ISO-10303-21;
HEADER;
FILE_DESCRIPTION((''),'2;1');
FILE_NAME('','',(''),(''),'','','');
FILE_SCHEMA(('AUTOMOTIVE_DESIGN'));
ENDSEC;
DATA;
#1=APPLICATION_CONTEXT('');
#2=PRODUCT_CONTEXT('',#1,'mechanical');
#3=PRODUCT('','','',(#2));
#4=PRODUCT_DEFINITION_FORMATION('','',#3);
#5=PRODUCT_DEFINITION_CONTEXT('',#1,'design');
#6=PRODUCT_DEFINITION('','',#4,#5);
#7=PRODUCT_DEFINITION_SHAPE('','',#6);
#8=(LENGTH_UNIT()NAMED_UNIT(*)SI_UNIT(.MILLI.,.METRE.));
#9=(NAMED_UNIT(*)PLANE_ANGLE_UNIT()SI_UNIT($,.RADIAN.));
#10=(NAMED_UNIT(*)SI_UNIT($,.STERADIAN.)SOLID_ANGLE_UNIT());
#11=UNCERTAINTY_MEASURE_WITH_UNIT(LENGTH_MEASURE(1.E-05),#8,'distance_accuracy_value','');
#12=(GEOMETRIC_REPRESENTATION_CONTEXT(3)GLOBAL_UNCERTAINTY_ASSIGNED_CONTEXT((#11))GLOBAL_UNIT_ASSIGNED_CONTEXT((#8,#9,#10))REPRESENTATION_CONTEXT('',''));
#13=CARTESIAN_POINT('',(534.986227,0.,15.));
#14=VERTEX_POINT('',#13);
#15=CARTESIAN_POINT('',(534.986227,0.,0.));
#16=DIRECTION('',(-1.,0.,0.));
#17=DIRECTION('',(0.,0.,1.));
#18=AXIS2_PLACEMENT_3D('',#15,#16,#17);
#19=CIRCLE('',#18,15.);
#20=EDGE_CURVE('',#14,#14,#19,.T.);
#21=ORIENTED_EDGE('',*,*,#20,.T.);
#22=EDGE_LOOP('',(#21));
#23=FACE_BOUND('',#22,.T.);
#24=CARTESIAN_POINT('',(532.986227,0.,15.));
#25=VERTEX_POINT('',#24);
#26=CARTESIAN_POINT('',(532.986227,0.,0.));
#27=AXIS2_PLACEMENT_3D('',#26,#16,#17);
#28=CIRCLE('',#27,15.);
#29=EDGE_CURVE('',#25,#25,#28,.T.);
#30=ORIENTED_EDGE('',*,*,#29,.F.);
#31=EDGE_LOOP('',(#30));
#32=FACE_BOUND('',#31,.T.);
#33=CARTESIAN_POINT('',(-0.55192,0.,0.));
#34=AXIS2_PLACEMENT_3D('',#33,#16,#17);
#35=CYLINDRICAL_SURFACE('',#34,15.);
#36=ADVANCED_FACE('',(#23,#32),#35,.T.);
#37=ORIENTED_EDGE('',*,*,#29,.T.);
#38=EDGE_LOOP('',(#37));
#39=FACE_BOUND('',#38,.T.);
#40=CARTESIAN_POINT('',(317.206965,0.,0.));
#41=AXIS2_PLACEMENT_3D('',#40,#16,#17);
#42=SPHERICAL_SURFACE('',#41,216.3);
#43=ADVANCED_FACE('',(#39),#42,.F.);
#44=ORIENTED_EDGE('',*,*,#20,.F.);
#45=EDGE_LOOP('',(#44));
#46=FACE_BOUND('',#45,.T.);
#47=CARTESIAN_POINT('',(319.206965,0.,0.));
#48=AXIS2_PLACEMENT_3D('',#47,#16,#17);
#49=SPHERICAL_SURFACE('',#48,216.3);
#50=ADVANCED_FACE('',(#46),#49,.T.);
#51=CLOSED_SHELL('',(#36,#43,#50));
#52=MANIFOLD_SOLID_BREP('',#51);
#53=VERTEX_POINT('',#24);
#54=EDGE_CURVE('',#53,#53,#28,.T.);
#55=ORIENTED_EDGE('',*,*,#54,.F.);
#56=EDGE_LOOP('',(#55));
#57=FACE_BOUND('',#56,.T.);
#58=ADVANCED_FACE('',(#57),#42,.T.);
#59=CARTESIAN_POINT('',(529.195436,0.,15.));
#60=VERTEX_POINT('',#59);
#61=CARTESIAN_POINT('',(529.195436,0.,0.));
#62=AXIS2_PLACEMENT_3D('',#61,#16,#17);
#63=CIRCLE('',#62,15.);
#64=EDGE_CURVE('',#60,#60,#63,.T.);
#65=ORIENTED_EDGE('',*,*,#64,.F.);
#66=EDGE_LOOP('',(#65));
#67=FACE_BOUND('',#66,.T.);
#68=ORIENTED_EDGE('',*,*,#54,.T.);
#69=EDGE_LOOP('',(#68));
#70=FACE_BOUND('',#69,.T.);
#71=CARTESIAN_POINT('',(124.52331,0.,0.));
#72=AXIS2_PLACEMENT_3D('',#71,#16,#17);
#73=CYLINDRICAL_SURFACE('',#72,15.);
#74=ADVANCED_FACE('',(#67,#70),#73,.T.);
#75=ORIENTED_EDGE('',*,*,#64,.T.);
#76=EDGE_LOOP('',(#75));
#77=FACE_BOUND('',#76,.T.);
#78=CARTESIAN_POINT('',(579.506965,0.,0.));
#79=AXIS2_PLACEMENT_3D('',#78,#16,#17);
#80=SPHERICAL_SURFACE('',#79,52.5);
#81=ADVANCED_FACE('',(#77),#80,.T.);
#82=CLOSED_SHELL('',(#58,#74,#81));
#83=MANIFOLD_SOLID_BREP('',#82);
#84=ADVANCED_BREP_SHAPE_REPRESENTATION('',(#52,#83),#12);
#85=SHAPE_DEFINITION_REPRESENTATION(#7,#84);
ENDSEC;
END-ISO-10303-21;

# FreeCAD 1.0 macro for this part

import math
import FreeCAD as App
import Part
import Sketcher

V = App.Vector

doc = App.newDocument("Part")
params = doc.addObject("Spreadsheet::Sheet", "Params")
for row, (alias, value) in enumerate([
    ("sketch1_radius", "52.5 mm"),
    ("sketch1_radius2", "216.3 mm"),
    ("sketch1_width", "6.5 mm"),
    ("revolution_angle", "360 deg"),
    ("sketch2_radius", "216.3 mm"),
    ("sketch2_width", "2 mm"),
    ("revolution2_angle", "360 deg"),
], start=1):
    params.set(f"A{row}", alias)
    params.set(f"B{row}", "=" + value)
    params.setAlias(f"B{row}", alias)

body = doc.addObject("PartDesign::Body", "Body")

# Sketch on XZ plane
sketch1 = body.newObject("Sketcher::SketchObject", "Sketch")
sketch1.AttachmentSupport = (doc.getObject("XZ_Plane"), [""])
sketch1.MapMode = "FlatFace"
sketch1.addGeometry(Part.ArcOfCircle(Part.Circle(V(579.5, 0, 0), V(0, 0, 1), 52.5), math.radians(-180), math.radians(-163.4)), False)
sketch1.addGeometry(Part.LineSegment(V(527, 0, 0), V(533.5, 0, 0)), False)
sketch1.addGeometry(Part.ArcOfCircle(Part.Circle(V(317.2, 0, 0), V(0, 0, 1), 216.3), math.radians(-3.98), math.radians(0)), False)
sketch1.addGeometry(Part.LineSegment(V(533, -15, 0), V(529.2, -15, 0)), False)
sketch1.addConstraint(Sketcher.Constraint("Coincident", 0, 1, 1, 1))
sketch1.addConstraint(Sketcher.Constraint("Coincident", 1, 2, 2, 2))
sketch1.addConstraint(Sketcher.Constraint("Coincident", 2, 1, 3, 1))
sketch1.addConstraint(Sketcher.Constraint("Coincident", 3, 2, 0, 2))
sketch1.addConstraint(Sketcher.Constraint("Horizontal", 1))
sketch1.addConstraint(Sketcher.Constraint("Horizontal", 3))
sketch1.addConstraint(Sketcher.Constraint("PointOnObject", 0, 3, -1))
sketch1.addConstraint(Sketcher.Constraint("PointOnObject", 2, 3, -1))
sketch1.addConstraint(Sketcher.Constraint("PointOnObject", 0, 1, -1))
sketch1.addConstraint(Sketcher.Constraint("Radius", 0, 52.5))
sketch1.addConstraint(Sketcher.Constraint("Radius", 2, 216.3))
sketch1.addConstraint(Sketcher.Constraint("DistanceX", 1, 1, 1, 2, 6.5))
sketch1.addConstraint(Sketcher.Constraint("DistanceY", 2, 1, -1, 1, 15.0))
sketch1.addConstraint(Sketcher.Constraint("DistanceX", -1, 1, 0, 3, 579.506965))
sketch1.setExpression("Constraints[9]", "Params.sketch1_radius")
sketch1.setExpression("Constraints[10]", "Params.sketch1_radius2")
sketch1.setExpression("Constraints[11]", "Params.sketch1_width")
revolution = body.newObject("PartDesign::Revolution", "Revolution")
revolution.Profile = sketch1
revolution.ReferenceAxis = (sketch1, ["H_Axis"])
revolution.setExpression("Angle", "Params.revolution_angle")
body2 = doc.addObject("PartDesign::Body", "Body001")

# Sketch on XZ plane
sketch2 = body2.newObject("Sketcher::SketchObject", "Sketch001")
sketch2.AttachmentSupport = (doc.getObject("XZ_Plane001"), [""])
sketch2.MapMode = "FlatFace"
sketch2.addGeometry(Part.LineSegment(V(535, -15, 0), V(533, -15, 0)), False)
sketch2.addGeometry(Part.ArcOfCircle(Part.Circle(V(317.2, 0, 0), V(0, 0, 1), 216.3), math.radians(-3.98), math.radians(0)), False)
sketch2.addGeometry(Part.LineSegment(V(533.5, 0, 0), V(535.5, 0, 0)), False)
sketch2.addGeometry(Part.ArcOfCircle(Part.Circle(V(319.2, 0, 0), V(0, 0, 1), 216.3), math.radians(-3.98), math.radians(0)), False)
sketch2.addConstraint(Sketcher.Constraint("Coincident", 0, 2, 1, 1))
sketch2.addConstraint(Sketcher.Constraint("Coincident", 1, 2, 2, 1))
sketch2.addConstraint(Sketcher.Constraint("Coincident", 2, 2, 3, 2))
sketch2.addConstraint(Sketcher.Constraint("Coincident", 3, 1, 0, 1))
sketch2.addConstraint(Sketcher.Constraint("Horizontal", 0))
sketch2.addConstraint(Sketcher.Constraint("Horizontal", 2))
sketch2.addConstraint(Sketcher.Constraint("Equal", 1, 3))
sketch2.addConstraint(Sketcher.Constraint("PointOnObject", 1, 3, -1))
sketch2.addConstraint(Sketcher.Constraint("PointOnObject", 3, 3, -1))
sketch2.addConstraint(Sketcher.Constraint("PointOnObject", 1, 2, -1))
sketch2.addConstraint(Sketcher.Constraint("Radius", 1, 216.3))
sketch2.addConstraint(Sketcher.Constraint("DistanceX", 0, 2, 0, 1, 2.0))
sketch2.addConstraint(Sketcher.Constraint("DistanceY", 0, 2, -1, 1, 15.0))
sketch2.addConstraint(Sketcher.Constraint("DistanceX", -1, 1, 1, 3, 317.206966))
sketch2.setExpression("Constraints[10]", "Params.sketch2_radius")
sketch2.setExpression("Constraints[11]", "Params.sketch2_width")
revolution2 = body2.newObject("PartDesign::Revolution", "Revolution001")
revolution2.Profile = sketch2
revolution2.ReferenceAxis = (sketch2, ["H_Axis"])
revolution2.setExpression("Angle", "Params.revolution2_angle")

doc.recompute()
